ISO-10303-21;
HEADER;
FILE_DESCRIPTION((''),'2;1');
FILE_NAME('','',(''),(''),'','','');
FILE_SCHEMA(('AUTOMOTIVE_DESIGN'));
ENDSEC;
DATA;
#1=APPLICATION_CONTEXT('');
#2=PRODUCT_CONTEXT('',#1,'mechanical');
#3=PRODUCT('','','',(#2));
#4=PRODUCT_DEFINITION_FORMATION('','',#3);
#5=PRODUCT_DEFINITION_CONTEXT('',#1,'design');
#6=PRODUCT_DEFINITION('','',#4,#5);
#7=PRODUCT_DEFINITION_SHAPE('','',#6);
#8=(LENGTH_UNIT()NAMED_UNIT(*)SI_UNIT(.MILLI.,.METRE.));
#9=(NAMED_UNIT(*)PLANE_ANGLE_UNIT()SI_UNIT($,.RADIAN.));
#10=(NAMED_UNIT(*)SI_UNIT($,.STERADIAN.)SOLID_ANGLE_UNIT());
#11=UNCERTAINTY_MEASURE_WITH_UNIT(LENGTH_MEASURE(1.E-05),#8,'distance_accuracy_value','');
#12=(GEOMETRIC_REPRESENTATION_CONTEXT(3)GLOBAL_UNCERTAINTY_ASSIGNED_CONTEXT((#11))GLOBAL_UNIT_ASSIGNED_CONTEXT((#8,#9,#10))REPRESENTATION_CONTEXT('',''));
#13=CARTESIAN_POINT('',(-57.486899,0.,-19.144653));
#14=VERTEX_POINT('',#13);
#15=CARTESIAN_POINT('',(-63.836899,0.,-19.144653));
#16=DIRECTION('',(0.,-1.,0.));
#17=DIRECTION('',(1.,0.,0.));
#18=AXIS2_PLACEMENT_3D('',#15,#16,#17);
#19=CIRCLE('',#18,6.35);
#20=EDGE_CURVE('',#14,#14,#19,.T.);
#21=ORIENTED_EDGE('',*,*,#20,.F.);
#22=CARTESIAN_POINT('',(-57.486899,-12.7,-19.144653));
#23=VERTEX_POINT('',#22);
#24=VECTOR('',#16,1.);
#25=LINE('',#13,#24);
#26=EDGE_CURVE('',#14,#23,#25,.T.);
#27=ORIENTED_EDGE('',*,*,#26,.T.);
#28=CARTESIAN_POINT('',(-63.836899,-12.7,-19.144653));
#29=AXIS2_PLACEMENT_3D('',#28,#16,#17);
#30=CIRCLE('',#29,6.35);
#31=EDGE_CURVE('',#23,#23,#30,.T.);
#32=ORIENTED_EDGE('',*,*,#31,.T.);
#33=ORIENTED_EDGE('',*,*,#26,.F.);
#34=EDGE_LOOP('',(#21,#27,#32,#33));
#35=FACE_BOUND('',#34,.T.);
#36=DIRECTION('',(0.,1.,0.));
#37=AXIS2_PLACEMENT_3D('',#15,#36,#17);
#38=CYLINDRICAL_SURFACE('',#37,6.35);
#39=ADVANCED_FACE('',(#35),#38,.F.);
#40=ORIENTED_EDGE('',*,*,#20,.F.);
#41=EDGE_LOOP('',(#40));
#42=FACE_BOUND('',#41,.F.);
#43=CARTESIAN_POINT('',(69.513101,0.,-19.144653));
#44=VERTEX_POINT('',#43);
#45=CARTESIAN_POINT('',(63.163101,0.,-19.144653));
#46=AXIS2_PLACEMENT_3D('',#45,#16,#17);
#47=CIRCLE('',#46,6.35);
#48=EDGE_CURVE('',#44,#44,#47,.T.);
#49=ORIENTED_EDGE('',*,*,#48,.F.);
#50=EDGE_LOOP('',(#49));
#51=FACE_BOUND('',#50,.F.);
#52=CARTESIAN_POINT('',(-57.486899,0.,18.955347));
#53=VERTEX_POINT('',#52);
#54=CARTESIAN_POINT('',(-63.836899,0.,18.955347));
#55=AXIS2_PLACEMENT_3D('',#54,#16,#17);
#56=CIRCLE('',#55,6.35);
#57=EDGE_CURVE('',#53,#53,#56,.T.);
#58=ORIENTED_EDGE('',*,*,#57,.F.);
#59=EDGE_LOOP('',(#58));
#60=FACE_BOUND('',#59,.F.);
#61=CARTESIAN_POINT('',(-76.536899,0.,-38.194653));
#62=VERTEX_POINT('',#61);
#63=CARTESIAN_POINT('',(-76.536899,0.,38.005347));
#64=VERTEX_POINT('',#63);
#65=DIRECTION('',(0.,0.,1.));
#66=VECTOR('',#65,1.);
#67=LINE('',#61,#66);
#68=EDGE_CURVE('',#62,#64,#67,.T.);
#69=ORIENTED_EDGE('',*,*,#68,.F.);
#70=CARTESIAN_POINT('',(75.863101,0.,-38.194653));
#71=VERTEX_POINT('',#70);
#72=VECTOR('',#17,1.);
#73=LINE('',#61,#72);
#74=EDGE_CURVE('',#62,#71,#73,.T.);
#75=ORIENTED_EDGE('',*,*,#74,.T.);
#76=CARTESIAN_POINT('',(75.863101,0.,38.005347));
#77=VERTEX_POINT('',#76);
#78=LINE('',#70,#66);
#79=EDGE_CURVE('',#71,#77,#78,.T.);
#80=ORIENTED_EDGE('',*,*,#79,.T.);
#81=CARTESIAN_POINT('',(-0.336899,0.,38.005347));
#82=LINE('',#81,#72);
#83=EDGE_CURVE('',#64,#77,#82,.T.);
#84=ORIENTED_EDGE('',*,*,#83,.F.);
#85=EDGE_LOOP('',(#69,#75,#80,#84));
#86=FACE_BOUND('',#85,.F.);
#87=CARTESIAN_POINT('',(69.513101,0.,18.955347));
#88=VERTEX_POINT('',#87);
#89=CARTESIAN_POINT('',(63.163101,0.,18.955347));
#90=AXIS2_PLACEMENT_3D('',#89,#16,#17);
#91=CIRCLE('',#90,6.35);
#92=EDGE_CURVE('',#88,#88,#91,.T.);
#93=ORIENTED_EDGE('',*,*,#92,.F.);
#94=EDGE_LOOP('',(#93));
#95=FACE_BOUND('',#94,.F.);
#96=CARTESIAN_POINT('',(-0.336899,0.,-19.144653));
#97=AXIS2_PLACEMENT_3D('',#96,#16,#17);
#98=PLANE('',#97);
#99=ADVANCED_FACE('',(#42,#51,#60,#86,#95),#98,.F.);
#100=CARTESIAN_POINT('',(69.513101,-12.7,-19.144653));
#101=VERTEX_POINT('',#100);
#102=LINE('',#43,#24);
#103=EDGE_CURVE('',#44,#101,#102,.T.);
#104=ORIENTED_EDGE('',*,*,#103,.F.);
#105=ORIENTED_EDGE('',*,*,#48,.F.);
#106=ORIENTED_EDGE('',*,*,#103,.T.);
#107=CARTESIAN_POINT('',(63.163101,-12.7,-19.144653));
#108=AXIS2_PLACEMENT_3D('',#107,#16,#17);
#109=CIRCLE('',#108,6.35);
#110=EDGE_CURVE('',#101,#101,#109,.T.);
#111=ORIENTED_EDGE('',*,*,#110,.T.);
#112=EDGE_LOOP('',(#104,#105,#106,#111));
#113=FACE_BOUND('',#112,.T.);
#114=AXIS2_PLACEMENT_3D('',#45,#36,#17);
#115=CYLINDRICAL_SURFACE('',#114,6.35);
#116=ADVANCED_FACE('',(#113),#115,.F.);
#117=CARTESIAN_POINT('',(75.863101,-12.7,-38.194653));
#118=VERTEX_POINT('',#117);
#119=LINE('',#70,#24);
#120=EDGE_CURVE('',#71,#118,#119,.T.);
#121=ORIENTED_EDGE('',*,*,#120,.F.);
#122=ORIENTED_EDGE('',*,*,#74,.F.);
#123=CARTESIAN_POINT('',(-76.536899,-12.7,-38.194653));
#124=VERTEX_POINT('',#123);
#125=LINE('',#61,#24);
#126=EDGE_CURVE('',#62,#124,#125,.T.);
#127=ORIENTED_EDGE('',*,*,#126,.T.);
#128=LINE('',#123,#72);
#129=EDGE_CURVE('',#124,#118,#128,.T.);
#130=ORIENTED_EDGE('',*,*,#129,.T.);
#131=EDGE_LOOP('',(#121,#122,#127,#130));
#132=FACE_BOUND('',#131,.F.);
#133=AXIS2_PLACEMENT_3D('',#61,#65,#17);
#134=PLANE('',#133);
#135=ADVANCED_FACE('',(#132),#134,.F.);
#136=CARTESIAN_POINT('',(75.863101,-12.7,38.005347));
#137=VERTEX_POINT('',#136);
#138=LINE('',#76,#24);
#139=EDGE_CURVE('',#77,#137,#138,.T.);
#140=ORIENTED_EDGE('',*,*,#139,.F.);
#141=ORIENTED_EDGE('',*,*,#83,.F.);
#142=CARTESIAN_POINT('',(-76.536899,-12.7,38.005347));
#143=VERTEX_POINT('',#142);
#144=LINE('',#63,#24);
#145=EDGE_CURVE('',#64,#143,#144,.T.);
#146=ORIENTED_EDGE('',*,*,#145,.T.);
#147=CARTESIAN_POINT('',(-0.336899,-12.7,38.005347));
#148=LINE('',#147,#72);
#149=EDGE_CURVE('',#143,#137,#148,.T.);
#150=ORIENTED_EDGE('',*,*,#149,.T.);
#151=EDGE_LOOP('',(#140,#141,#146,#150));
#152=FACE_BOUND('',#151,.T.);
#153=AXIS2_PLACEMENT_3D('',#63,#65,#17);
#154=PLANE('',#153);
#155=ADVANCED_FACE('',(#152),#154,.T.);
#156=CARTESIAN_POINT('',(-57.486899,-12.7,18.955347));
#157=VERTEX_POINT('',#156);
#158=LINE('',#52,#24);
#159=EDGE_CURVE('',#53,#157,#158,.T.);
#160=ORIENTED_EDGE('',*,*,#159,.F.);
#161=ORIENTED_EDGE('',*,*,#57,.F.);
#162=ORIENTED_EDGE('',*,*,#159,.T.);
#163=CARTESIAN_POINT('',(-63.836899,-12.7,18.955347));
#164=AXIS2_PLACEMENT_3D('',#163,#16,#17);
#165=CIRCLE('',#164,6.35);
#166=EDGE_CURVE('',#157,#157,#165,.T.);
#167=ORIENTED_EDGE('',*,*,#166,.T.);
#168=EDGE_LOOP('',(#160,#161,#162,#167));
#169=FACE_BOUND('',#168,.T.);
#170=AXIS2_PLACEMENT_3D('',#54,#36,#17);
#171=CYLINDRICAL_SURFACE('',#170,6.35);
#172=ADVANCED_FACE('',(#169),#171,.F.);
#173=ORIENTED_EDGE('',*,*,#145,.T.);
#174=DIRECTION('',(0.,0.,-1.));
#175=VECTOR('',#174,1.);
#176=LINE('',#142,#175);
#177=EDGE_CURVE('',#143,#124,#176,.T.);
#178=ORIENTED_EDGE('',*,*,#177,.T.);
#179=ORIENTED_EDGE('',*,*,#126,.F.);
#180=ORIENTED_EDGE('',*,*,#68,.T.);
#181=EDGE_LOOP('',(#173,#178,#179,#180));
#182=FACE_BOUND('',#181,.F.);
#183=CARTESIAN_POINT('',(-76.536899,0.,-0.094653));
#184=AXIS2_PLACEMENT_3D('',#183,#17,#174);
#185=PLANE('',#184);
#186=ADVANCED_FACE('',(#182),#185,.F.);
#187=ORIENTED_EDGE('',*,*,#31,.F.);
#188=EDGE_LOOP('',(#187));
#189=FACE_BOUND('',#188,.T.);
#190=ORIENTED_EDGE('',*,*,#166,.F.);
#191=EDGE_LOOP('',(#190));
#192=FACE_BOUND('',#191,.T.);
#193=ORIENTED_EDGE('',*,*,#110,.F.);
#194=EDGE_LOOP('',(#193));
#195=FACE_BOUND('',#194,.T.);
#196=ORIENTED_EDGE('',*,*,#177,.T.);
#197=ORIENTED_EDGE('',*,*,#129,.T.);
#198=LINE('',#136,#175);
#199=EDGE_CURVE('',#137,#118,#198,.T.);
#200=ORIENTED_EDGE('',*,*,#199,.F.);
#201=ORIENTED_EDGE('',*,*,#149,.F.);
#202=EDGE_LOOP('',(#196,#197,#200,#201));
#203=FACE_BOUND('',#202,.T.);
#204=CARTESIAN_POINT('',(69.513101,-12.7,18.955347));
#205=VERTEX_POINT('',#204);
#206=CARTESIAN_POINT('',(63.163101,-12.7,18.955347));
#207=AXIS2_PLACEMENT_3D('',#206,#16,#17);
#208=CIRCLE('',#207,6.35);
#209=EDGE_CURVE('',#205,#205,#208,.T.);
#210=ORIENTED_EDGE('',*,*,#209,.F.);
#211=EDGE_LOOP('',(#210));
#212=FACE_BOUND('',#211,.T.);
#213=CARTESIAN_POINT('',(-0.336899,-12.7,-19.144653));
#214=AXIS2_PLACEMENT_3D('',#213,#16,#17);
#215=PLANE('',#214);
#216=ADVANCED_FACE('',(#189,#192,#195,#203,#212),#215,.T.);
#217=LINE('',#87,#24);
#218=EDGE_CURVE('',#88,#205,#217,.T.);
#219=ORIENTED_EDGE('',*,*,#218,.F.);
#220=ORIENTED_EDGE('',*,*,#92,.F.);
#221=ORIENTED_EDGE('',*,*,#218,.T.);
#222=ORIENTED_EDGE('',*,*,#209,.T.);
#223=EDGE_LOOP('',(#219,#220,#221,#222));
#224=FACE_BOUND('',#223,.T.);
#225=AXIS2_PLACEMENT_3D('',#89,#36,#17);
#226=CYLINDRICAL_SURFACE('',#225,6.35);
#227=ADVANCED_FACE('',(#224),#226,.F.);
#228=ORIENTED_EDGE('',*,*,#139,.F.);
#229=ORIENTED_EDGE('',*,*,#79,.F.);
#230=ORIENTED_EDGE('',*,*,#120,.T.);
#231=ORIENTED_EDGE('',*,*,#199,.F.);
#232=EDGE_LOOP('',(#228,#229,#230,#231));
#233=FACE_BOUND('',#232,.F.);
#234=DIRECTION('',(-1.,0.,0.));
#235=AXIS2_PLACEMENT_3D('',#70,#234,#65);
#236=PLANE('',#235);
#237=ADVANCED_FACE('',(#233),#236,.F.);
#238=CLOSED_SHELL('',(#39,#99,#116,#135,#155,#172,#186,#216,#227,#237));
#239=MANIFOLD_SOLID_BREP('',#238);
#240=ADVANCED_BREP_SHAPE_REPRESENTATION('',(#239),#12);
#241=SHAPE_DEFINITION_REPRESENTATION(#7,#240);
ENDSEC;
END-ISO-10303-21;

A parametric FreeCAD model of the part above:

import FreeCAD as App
import Part
import Sketcher

V = App.Vector
Q = App.Units.Quantity


def add_polygon(sketch, points):
    """Adds a closed chain of lines whose ends are joined by coincident constraints."""
    first, n = sketch.GeometryCount, len(points)
    for a, b in zip(points, points[1:] + points[:1]):
        sketch.addGeometry(Part.LineSegment(App.Vector(*a, 0), App.Vector(*b, 0)), False)
    for i in range(n):
        sketch.addConstraint(Sketcher.Constraint("Coincident", first + i, 2, first + (i + 1) % n, 1))

doc = App.newDocument("Part")
params = doc.addObject("Spreadsheet::Sheet", "Params")
for row, (alias, value) in enumerate([
    ("sketch1_diameter", "0.5 in"),
    ("sketch1_width", "6 in"),
    ("sketch1_height", "1.5 in"),
    ("pad1_length", "0.5 in"),
    ("sketch2_diameter", "0.5 in"),
    ("sketch2_width", "6 in"),
    ("sketch2_height", "1.5 in"),
    ("pad2_length", "0.5 in"),
], start=1):
    params.set(f"A{row}", alias)
    params.set(f"B{row}", "=" + value)
    params.setAlias(f"B{row}", alias)

body = doc.addObject("PartDesign::Body", "Body")

# Sketch on XZ plane
sketch1 = body.newObject("Sketcher::SketchObject", "Sketch")
sketch1.AttachmentSupport = (doc.getObject("XZ_Plane"), [""])
sketch1.MapMode = "FlatFace"
add_polygon(sketch1, [(-76.536899, 38.005347), (-76.536899, -0.094653), (75.863101, -0.094653), (75.863101, 38.005347)])  # lines 0-3
sketch1.addGeometry(Part.Circle(V(-63.836899, 18.955347, 0), V(0, 0, 1), 6.35), False)  # 4
sketch1.addGeometry(Part.Circle(V(63.163101, 18.955347, 0), V(0, 0, 1), 6.35), False)  # 5
sketch1.addConstraint([
    Sketcher.Constraint("Vertical", 0),
    Sketcher.Constraint("Horizontal", 1),
    Sketcher.Constraint("Vertical", 2),
    Sketcher.Constraint("Horizontal", 3),
    Sketcher.Constraint("Equal", 4, 5),
    Sketcher.Constraint("Horizontal", 4, 3, 5, 3),
    Sketcher.Constraint("Diameter", 4, Q("0.5 in")),
    Sketcher.Constraint("DistanceX", 1, 1, 1, 2, Q("6 in")),
    Sketcher.Constraint("DistanceY", 0, 2, 0, 1, Q("1.5 in")),
    Sketcher.Constraint("DistanceX", 4, 3, 5, 3, Q("5 in")),
    Sketcher.Constraint("DistanceX", 0, 2, 4, 3, Q("0.5 in")),
    Sketcher.Constraint("DistanceY", 0, 2, 4, 3, Q("0.75 in")),
    Sketcher.Constraint("DistanceX", 4, 3, -1, 1, Q("63.836899 mm")),
    Sketcher.Constraint("DistanceY", -1, 1, 4, 3, Q("18.955347 mm")),
])
sketch1.setExpression("Constraints[10]", "Params.sketch1_diameter")
sketch1.setExpression("Constraints[11]", "Params.sketch1_width")
sketch1.setExpression("Constraints[12]", "Params.sketch1_height")
pad1 = body.newObject("PartDesign::Pad", "Pad")
pad1.Profile = sketch1
pad1.setExpression("Length", "Params.pad1_length")

# Sketch on XZ plane
sketch2 = body.newObject("Sketcher::SketchObject", "Sketch001")
sketch2.AttachmentSupport = (doc.getObject("XZ_Plane"), [""])
sketch2.MapMode = "FlatFace"
add_polygon(sketch2, [(75.863101, -0.094653), (-76.536899, -0.094653), (-76.536899, -38.194653), (75.863101, -38.194653)])  # lines 0-3
sketch2.addGeometry(Part.Circle(V(-63.836899, -19.144653, 0), V(0, 0, 1), 6.35), False)  # 4
sketch2.addGeometry(Part.Circle(V(63.163101, -19.144653, 0), V(0, 0, 1), 6.35), False)  # 5
sketch2.addConstraint([
    Sketcher.Constraint("Horizontal", 0),
    Sketcher.Constraint("Vertical", 1),
    Sketcher.Constraint("Horizontal", 2),
    Sketcher.Constraint("Vertical", 3),
    Sketcher.Constraint("Equal", 4, 5),
    Sketcher.Constraint("Horizontal", 4, 3, 5, 3),
    Sketcher.Constraint("Diameter", 4, Q("0.5 in")),
    Sketcher.Constraint("DistanceX", 0, 2, 0, 1, Q("6 in")),
    Sketcher.Constraint("DistanceY", 1, 2, 1, 1, Q("1.5 in")),
    Sketcher.Constraint("DistanceX", 4, 3, 5, 3, Q("5 in")),
    Sketcher.Constraint("DistanceX", 0, 2, 4, 3, Q("0.5 in")),
    Sketcher.Constraint("DistanceY", 4, 3, 0, 2, Q("0.75 in")),
    Sketcher.Constraint("DistanceX", 4, 3, -1, 1, Q("63.836899 mm")),
    Sketcher.Constraint("DistanceY", 4, 3, -1, 1, Q("19.144653 mm")),
])
sketch2.setExpression("Constraints[10]", "Params.sketch2_diameter")
sketch2.setExpression("Constraints[11]", "Params.sketch2_width")
sketch2.setExpression("Constraints[12]", "Params.sketch2_height")
pad2 = body.newObject("PartDesign::Pad", "Pad001")
pad2.Profile = sketch2
pad2.setExpression("Length", "Params.pad2_length")

doc.recompute()
